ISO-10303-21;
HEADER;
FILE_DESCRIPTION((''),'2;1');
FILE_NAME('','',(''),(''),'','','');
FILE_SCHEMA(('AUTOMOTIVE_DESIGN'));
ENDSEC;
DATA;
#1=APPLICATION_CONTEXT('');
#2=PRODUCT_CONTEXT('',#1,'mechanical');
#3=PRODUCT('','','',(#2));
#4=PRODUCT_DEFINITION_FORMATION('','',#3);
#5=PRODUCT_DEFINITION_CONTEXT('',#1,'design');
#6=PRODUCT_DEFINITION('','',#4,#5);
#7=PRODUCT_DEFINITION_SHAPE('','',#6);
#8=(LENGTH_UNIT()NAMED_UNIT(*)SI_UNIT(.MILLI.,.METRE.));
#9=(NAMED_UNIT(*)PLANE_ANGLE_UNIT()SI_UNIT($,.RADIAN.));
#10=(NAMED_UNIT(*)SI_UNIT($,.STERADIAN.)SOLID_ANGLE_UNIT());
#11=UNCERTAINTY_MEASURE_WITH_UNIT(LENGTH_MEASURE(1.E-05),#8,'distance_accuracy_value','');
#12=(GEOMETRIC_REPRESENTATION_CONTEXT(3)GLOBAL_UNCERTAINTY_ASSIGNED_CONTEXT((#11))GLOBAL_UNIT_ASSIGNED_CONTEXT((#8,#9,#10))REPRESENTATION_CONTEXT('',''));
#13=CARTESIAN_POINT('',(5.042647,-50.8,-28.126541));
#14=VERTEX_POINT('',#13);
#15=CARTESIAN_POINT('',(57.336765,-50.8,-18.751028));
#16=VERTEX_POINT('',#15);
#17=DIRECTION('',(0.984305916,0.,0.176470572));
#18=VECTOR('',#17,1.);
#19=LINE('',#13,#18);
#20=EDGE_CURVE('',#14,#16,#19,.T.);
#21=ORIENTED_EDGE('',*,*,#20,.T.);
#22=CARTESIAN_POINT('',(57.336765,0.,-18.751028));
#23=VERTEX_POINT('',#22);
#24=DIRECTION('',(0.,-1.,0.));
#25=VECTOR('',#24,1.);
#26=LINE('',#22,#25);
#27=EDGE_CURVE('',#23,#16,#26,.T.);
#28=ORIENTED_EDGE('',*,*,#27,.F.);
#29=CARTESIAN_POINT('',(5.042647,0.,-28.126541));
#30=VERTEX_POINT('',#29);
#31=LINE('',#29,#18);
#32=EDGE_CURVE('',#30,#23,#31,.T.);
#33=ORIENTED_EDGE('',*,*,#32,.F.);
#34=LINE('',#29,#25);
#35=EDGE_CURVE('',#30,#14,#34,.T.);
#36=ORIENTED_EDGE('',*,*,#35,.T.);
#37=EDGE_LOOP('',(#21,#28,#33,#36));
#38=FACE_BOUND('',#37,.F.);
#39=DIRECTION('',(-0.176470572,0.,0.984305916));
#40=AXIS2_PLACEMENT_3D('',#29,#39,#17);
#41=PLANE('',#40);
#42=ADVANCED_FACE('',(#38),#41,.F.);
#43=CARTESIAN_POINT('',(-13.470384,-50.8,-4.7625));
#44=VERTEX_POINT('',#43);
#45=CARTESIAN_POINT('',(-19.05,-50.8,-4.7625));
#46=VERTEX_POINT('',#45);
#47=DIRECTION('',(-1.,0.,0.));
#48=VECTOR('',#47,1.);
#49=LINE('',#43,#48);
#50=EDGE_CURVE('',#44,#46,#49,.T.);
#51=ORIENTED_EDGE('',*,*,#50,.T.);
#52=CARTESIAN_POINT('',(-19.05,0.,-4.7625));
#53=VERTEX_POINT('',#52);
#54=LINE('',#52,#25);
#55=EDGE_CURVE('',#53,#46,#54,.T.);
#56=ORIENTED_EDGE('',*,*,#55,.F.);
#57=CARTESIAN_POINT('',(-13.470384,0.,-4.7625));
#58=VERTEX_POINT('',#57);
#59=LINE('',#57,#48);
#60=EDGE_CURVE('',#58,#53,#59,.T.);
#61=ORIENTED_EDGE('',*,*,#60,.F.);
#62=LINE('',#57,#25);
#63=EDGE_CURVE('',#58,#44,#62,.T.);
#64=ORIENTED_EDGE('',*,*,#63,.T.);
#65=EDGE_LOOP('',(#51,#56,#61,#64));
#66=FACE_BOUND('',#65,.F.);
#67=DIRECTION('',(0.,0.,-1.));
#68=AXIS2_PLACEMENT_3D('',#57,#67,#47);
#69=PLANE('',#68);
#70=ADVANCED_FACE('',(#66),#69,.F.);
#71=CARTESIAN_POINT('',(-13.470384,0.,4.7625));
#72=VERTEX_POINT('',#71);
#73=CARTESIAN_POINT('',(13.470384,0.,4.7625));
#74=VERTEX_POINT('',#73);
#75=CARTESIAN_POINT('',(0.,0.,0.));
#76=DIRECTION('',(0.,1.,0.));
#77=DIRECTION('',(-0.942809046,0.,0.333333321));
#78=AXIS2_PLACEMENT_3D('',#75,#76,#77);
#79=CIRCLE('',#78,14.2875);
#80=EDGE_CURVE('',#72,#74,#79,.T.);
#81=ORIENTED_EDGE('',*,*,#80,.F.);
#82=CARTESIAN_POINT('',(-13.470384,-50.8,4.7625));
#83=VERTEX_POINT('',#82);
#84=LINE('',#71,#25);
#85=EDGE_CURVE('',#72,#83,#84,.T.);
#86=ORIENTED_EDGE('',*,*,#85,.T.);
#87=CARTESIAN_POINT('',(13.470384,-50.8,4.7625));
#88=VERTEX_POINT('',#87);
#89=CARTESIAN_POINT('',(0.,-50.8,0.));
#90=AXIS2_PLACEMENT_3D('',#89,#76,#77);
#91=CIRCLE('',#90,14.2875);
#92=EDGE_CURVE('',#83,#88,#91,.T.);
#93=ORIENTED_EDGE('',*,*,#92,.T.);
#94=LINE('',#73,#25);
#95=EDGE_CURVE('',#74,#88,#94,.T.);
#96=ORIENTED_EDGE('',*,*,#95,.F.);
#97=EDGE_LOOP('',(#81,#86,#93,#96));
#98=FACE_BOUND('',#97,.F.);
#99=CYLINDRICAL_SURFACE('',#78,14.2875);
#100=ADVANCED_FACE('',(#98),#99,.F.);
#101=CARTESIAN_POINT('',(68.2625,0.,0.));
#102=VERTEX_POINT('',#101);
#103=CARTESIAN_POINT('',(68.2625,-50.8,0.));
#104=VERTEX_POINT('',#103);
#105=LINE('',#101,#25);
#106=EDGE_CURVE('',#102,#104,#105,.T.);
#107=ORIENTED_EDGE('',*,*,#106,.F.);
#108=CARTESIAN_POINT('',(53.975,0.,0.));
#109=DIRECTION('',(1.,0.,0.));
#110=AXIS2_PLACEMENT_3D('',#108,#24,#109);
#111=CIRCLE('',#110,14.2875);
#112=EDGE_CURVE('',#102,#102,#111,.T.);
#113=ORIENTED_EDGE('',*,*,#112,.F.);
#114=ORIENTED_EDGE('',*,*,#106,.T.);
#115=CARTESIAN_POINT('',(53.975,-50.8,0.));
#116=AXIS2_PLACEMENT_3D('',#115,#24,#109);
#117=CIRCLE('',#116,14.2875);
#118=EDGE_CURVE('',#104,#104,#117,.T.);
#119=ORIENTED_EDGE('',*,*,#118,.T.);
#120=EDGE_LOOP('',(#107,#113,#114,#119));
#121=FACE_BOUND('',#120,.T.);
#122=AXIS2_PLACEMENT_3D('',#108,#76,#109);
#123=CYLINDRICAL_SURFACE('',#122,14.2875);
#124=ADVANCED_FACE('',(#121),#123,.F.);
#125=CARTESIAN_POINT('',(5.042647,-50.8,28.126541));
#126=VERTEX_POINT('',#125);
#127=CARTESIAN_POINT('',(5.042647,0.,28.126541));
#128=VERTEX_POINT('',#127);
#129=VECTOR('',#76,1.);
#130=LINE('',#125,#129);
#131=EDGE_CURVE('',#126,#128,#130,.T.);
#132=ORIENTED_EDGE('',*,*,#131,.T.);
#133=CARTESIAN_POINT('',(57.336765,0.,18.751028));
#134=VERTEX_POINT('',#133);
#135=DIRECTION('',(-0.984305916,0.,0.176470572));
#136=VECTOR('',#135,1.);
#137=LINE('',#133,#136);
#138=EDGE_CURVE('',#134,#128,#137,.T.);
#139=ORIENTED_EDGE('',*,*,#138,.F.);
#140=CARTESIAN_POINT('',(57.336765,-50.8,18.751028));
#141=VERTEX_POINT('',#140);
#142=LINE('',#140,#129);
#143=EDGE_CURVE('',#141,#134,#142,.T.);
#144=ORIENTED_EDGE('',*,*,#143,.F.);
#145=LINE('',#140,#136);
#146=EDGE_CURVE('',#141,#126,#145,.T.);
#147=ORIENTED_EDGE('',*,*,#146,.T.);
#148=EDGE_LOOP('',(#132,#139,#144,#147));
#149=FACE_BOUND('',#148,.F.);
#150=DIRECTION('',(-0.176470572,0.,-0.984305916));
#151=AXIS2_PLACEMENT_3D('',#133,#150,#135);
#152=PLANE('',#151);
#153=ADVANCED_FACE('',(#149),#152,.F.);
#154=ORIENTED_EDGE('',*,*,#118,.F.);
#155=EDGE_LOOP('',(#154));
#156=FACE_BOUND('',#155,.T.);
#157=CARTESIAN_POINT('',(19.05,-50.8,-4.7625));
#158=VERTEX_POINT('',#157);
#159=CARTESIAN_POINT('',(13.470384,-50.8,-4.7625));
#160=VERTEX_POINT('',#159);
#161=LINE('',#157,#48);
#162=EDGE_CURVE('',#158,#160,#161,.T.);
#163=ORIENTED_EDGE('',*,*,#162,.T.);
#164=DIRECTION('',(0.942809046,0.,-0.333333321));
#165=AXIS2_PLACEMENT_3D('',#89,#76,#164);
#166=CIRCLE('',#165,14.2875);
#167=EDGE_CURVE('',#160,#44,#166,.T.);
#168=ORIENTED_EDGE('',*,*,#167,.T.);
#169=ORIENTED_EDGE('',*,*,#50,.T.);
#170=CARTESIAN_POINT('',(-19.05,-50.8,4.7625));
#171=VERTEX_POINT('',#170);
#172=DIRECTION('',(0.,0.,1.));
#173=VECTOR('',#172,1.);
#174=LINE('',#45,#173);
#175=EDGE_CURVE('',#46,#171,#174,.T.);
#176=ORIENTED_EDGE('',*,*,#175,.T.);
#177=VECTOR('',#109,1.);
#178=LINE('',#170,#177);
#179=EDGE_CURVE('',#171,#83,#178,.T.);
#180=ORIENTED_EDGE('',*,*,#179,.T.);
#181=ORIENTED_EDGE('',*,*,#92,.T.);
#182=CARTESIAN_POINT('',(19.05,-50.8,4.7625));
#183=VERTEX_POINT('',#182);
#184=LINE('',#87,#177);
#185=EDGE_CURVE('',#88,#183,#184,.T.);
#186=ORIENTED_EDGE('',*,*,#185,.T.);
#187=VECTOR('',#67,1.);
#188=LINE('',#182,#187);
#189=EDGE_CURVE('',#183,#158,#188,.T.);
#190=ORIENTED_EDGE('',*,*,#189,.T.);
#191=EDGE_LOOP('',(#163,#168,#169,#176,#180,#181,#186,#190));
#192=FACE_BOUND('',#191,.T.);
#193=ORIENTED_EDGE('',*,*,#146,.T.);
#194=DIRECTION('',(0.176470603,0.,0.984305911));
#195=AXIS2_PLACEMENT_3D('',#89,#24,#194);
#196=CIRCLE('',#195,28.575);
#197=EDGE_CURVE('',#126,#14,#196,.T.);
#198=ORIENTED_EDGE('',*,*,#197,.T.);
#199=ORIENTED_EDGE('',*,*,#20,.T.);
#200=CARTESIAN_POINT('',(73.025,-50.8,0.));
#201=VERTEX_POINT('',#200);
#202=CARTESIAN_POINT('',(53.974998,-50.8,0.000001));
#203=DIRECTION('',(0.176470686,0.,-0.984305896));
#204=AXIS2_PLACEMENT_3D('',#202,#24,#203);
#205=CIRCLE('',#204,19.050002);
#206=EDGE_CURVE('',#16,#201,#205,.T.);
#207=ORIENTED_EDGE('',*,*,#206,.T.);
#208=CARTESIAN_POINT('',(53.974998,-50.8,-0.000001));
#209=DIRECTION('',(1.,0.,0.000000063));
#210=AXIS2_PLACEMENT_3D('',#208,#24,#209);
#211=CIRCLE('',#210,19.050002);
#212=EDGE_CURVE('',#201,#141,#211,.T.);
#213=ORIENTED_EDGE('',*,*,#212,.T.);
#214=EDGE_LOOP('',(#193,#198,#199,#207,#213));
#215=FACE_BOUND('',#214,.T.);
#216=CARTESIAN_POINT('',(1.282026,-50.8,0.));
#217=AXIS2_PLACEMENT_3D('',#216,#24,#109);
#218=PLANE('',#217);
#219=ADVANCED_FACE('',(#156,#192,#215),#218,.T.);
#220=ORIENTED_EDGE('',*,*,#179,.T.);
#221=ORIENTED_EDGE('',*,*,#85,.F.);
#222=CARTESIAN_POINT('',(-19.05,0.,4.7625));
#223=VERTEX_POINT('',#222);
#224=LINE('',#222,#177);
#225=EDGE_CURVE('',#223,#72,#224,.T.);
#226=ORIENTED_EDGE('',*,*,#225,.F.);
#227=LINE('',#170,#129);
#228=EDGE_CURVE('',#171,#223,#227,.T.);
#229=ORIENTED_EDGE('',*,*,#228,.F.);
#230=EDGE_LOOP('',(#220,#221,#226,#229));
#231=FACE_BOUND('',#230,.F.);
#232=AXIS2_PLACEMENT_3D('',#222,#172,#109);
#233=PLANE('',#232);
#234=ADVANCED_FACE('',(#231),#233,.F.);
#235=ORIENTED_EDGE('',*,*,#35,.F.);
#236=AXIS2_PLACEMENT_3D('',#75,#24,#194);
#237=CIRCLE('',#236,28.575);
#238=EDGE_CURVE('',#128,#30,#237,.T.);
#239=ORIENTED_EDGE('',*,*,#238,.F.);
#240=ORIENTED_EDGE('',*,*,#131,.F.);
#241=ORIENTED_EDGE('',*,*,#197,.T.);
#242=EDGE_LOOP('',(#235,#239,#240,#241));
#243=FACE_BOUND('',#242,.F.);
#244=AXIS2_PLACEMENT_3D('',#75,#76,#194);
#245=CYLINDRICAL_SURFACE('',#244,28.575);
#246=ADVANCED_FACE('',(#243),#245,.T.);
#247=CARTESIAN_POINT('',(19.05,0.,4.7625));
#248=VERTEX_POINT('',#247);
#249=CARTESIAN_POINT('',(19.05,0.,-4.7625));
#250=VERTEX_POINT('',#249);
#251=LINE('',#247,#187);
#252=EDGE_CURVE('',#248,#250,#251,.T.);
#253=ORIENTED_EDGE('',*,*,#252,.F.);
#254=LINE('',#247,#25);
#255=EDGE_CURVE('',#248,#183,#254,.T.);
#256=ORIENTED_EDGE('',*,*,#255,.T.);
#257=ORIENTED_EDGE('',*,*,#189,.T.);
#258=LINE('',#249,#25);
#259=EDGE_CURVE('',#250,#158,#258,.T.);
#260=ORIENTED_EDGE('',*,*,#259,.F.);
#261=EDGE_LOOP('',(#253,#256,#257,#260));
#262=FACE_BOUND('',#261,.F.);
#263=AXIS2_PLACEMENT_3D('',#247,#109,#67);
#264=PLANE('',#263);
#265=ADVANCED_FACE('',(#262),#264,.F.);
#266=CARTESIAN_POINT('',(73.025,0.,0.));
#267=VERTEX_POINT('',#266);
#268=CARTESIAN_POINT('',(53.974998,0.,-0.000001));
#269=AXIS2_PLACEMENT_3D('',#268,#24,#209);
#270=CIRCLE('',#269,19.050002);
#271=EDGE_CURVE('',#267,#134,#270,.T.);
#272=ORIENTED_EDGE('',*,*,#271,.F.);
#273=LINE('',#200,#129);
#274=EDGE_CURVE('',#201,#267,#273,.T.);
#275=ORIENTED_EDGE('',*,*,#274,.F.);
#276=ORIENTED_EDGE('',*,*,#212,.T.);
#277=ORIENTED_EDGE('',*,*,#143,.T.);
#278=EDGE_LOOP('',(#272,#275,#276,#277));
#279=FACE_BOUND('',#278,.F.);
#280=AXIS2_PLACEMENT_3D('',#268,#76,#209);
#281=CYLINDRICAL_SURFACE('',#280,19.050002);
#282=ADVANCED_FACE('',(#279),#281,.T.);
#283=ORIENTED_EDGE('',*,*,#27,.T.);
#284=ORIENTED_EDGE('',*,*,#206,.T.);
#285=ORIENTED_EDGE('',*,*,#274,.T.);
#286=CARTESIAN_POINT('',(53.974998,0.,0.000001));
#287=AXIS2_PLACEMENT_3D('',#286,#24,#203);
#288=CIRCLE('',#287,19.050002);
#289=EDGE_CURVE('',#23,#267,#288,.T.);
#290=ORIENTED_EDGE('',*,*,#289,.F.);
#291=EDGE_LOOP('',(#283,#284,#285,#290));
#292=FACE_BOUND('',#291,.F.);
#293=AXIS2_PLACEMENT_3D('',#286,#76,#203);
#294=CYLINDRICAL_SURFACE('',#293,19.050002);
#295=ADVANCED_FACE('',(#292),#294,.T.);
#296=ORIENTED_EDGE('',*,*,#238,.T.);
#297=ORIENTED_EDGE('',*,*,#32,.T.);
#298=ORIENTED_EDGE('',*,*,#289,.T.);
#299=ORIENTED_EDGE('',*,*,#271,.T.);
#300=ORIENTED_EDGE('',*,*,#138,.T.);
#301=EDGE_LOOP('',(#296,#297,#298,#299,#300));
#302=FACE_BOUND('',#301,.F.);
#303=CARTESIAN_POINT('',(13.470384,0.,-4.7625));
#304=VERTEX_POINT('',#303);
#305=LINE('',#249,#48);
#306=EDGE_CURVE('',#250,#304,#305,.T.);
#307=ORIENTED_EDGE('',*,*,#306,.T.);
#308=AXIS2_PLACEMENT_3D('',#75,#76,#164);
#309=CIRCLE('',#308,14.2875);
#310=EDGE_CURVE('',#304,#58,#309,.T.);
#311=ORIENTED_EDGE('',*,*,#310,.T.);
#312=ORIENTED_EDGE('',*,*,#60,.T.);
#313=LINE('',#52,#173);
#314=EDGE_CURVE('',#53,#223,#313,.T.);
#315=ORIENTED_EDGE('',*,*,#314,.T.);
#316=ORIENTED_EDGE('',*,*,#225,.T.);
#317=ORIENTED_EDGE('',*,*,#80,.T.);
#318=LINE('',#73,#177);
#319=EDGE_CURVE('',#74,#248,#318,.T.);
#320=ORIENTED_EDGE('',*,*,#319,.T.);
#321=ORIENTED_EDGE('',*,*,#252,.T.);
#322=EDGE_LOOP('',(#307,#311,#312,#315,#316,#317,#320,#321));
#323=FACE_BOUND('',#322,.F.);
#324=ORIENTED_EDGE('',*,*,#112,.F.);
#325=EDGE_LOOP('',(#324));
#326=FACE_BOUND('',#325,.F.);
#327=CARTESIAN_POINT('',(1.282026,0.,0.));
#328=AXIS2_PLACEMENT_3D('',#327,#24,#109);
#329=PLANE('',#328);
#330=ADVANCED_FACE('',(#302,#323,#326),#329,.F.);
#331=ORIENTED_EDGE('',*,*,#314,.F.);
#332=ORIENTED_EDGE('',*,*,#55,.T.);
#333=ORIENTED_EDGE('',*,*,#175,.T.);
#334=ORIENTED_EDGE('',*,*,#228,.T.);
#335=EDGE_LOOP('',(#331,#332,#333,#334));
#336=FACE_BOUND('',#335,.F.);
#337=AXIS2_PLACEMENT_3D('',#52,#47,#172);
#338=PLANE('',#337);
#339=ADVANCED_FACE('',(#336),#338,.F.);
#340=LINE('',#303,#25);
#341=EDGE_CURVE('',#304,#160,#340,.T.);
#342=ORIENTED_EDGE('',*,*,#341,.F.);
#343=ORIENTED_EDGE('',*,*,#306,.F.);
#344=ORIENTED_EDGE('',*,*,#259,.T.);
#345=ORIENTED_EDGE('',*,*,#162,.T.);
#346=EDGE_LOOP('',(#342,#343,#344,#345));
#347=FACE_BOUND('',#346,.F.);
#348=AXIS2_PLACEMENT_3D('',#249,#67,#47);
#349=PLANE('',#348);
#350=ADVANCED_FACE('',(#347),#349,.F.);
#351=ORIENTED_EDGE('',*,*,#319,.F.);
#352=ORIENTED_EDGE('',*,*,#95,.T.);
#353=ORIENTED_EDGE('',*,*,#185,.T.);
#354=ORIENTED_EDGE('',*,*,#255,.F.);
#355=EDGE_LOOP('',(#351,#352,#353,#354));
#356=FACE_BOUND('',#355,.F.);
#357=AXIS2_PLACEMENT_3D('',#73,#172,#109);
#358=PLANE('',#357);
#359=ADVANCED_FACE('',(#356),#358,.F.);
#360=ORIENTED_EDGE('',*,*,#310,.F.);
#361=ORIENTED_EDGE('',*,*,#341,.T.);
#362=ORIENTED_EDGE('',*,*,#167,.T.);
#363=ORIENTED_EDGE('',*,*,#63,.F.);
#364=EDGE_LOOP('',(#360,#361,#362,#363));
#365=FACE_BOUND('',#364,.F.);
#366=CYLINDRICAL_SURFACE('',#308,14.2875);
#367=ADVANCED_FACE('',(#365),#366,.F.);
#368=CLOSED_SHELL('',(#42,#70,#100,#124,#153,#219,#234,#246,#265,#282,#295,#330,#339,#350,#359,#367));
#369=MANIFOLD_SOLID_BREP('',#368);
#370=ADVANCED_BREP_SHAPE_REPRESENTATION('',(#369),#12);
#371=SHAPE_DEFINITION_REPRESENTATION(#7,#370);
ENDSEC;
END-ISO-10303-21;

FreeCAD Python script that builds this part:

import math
import FreeCAD as App
import Part
import Sketcher

V = App.Vector
Q = App.Units.Quantity

doc = App.newDocument("Part")
body = doc.addObject("PartDesign::Body", "Body")

sketch1 = doc.addObject("Sketcher::SketchObject", "Sketch")
body.addObject(sketch1)
sketch1.AttachmentSupport = (doc.XZ_Plane, [""])
sketch1.MapMode = "FlatFace"
sketch1.addGeometry([
    Part.ArcOfCircle(Part.Circle(V(0, 0, 0), V(0, 0, 1), 29), math.radians(80), math.radians(280)),
    Part.LineSegment(V(5, -28, 0), V(57, -19, 0)),
    Part.ArcOfCircle(Part.Circle(V(54, 0, 0), V(0, 0, 1), 19), math.radians(-80), math.radians(0)),
    Part.ArcOfCircle(Part.Circle(V(54, 0, 0), V(0, 0, 1), 19), math.radians(0), math.radians(80)),
    Part.LineSegment(V(57, 19, 0), V(5, 28, 0)),
    Part.LineSegment(V(-19, 5, 0), V(-13, 5, 0)),
    Part.ArcOfCircle(Part.Circle(V(0, 0, 0), V(0, 0, 1), 14), math.radians(19), math.radians(161)),
    Part.LineSegment(V(13, 5, 0), V(19, 5, 0)),
    Part.LineSegment(V(19, 5, 0), V(19, -5, 0)),
    Part.LineSegment(V(19, -5, 0), V(13, -5, 0)),
    Part.ArcOfCircle(Part.Circle(V(0, 0, 0), V(0, 0, 1), 14), math.radians(-161), math.radians(-19)),
    Part.LineSegment(V(-13, -5, 0), V(-19, -5, 0)),
    Part.LineSegment(V(-19, -5, 0), V(-19, 5, 0)),
    Part.Circle(V(54, 0, 0), V(0, 0, 1), 14),
], False)
sketch1.addConstraint([
    Sketcher.Constraint("Tangent", 0, 2, 1, 1),
    Sketcher.Constraint("Tangent", 1, 2, 2, 1),
    Sketcher.Constraint("Tangent", 2, 2, 3, 1),
    Sketcher.Constraint("Tangent", 3, 2, 4, 1),
    Sketcher.Constraint("Tangent", 4, 2, 0, 1),
    Sketcher.Constraint("Coincident", 5, 2, 6, 2),
    Sketcher.Constraint("Coincident", 6, 1, 7, 1),
    Sketcher.Constraint("Coincident", 7, 2, 8, 1),
    Sketcher.Constraint("Coincident", 8, 2, 9, 1),
    Sketcher.Constraint("Coincident", 9, 2, 10, 2),
    Sketcher.Constraint("Coincident", 10, 1, 11, 1),
    Sketcher.Constraint("Coincident", 11, 2, 12, 1),
    Sketcher.Constraint("Coincident", 12, 2, 5, 1),
    Sketcher.Constraint("Horizontal", 5),
    Sketcher.Constraint("Horizontal", 7),
    Sketcher.Constraint("Vertical", 8),
    Sketcher.Constraint("Horizontal", 9),
    Sketcher.Constraint("Horizontal", 11),
    Sketcher.Constraint("Vertical", 12),
    Sketcher.Constraint("Coincident", 0, 3, -1, 1),
    Sketcher.Constraint("Coincident", 6, 3, -1, 1),
    Sketcher.Constraint("Coincident", 10, 3, -1, 1),
    Sketcher.Constraint("Coincident", 13, 3, 2, 3),
    Sketcher.Constraint("Equal", 2, 3),
    Sketcher.Constraint("Equal", 6, 10),
    Sketcher.Constraint("Equal", 10, 13),
    Sketcher.Constraint("Symmetric", 7, 2, 11, 2, -1, 1),
    Sketcher.Constraint("PointOnObject", 2, 3, -1),
    Sketcher.Constraint("PointOnObject", 2, 2, -1),
    Sketcher.Constraint("Horizontal", 5, 2, 6, 1),
    Sketcher.Constraint("Horizontal", 9, 2, 10, 1),
    Sketcher.Constraint("Radius", 2, Q("0.7500001 in")),
    Sketcher.Constraint("Diameter", 13, Q("1.125 in")),
    Sketcher.Constraint("Radius", 0, Q("1.125 in")),
    Sketcher.Constraint("DistanceY", 8, 2, 8, 1, Q("0.375 in")),
    Sketcher.Constraint("DistanceX", -1, 1, 7, 2, Q("0.75 in")),
    Sketcher.Constraint("DistanceX", -1, 1, 2, 3, Q("2.1249999 in")),
])
pad1 = doc.addObject("PartDesign::Pad", "Pad")
body.addObject(pad1)
pad1.Profile = sketch1
pad1.Length = Q("1 in")

sketch2 = doc.addObject("Sketcher::SketchObject", "Sketch001")
body.addObject(sketch2)
sketch2.AttachmentSupport = (doc.XZ_Plane, [""])
sketch2.MapMode = "FlatFace"
sketch2.addGeometry([
    Part.ArcOfCircle(Part.Circle(V(0, 0, 0), V(0, 0, 1), 29), math.radians(80), math.radians(280)),
    Part.LineSegment(V(5, -28, 0), V(57, -19, 0)),
    Part.ArcOfCircle(Part.Circle(V(54, 0, 0), V(0, 0, 1), 19), math.radians(-80), math.radians(0)),
    Part.ArcOfCircle(Part.Circle(V(54, 0, 0), V(0, 0, 1), 19), math.radians(0), math.radians(80)),
    Part.LineSegment(V(57, 19, 0), V(5, 28, 0)),
    Part.LineSegment(V(-19, 5, 0), V(-13, 5, 0)),
    Part.ArcOfCircle(Part.Circle(V(0, 0, 0), V(0, 0, 1), 14), math.radians(19), math.radians(161)),
    Part.LineSegment(V(13, 5, 0), V(19, 5, 0)),
    Part.LineSegment(V(19, 5, 0), V(19, -5, 0)),
    Part.LineSegment(V(19, -5, 0), V(13, -5, 0)),
    Part.ArcOfCircle(Part.Circle(V(0, 0, 0), V(0, 0, 1), 14), math.radians(-161), math.radians(-19)),
    Part.LineSegment(V(-13, -5, 0), V(-19, -5, 0)),
    Part.LineSegment(V(-19, -5, 0), V(-19, 5, 0)),
    Part.Circle(V(54, 0, 0), V(0, 0, 1), 14),
], False)
sketch2.addConstraint([
    Sketcher.Constraint("Tangent", 0, 2, 1, 1),
    Sketcher.Constraint("Tangent", 1, 2, 2, 1),
    Sketcher.Constraint("Tangent", 2, 2, 3, 1),
    Sketcher.Constraint("Tangent", 3, 2, 4, 1),
    Sketcher.Constraint("Tangent", 4, 2, 0, 1),
    Sketcher.Constraint("Coincident", 5, 2, 6, 2),
    Sketcher.Constraint("Coincident", 6, 1, 7, 1),
    Sketcher.Constraint("Coincident", 7, 2, 8, 1),
    Sketcher.Constraint("Coincident", 8, 2, 9, 1),
    Sketcher.Constraint("Coincident", 9, 2, 10, 2),
    Sketcher.Constraint("Coincident", 10, 1, 11, 1),
    Sketcher.Constraint("Coincident", 11, 2, 12, 1),
    Sketcher.Constraint("Coincident", 12, 2, 5, 1),
    Sketcher.Constraint("Horizontal", 5),
    Sketcher.Constraint("Horizontal", 7),
    Sketcher.Constraint("Vertical", 8),
    Sketcher.Constraint("Horizontal", 9),
    Sketcher.Constraint("Horizontal", 11),
    Sketcher.Constraint("Vertical", 12),
    Sketcher.Constraint("Coincident", 0, 3, -1, 1),
    Sketcher.Constraint("Coincident", 6, 3, -1, 1),
    Sketcher.Constraint("Coincident", 10, 3, -1, 1),
    Sketcher.Constraint("Coincident", 13, 3, 2, 3),
    Sketcher.Constraint("Equal", 2, 3),
    Sketcher.Constraint("Equal", 6, 10),
    Sketcher.Constraint("Equal", 10, 13),
    Sketcher.Constraint("Symmetric", 7, 2, 11, 2, -1, 1),
    Sketcher.Constraint("PointOnObject", 2, 3, -1),
    Sketcher.Constraint("PointOnObject", 2, 2, -1),
    Sketcher.Constraint("Horizontal", 5, 2, 6, 1),
    Sketcher.Constraint("Horizontal", 9, 2, 10, 1),
    Sketcher.Constraint("Radius", 2, Q("0.7500001 in")),
    Sketcher.Constraint("Diameter", 13, Q("1.125 in")),
    Sketcher.Constraint("Radius", 0, Q("1.125 in")),
    Sketcher.Constraint("DistanceY", 8, 2, 8, 1, Q("0.375 in")),
    Sketcher.Constraint("DistanceX", -1, 1, 7, 2, Q("0.75 in")),
    Sketcher.Constraint("DistanceX", -1, 1, 2, 3, Q("2.1249999 in")),
])
pad2 = doc.addObject("PartDesign::Pad", "Pad001")
body.addObject(pad2)
pad2.Profile = sketch2
pad2.Length = Q("2 in")

doc.recompute()
